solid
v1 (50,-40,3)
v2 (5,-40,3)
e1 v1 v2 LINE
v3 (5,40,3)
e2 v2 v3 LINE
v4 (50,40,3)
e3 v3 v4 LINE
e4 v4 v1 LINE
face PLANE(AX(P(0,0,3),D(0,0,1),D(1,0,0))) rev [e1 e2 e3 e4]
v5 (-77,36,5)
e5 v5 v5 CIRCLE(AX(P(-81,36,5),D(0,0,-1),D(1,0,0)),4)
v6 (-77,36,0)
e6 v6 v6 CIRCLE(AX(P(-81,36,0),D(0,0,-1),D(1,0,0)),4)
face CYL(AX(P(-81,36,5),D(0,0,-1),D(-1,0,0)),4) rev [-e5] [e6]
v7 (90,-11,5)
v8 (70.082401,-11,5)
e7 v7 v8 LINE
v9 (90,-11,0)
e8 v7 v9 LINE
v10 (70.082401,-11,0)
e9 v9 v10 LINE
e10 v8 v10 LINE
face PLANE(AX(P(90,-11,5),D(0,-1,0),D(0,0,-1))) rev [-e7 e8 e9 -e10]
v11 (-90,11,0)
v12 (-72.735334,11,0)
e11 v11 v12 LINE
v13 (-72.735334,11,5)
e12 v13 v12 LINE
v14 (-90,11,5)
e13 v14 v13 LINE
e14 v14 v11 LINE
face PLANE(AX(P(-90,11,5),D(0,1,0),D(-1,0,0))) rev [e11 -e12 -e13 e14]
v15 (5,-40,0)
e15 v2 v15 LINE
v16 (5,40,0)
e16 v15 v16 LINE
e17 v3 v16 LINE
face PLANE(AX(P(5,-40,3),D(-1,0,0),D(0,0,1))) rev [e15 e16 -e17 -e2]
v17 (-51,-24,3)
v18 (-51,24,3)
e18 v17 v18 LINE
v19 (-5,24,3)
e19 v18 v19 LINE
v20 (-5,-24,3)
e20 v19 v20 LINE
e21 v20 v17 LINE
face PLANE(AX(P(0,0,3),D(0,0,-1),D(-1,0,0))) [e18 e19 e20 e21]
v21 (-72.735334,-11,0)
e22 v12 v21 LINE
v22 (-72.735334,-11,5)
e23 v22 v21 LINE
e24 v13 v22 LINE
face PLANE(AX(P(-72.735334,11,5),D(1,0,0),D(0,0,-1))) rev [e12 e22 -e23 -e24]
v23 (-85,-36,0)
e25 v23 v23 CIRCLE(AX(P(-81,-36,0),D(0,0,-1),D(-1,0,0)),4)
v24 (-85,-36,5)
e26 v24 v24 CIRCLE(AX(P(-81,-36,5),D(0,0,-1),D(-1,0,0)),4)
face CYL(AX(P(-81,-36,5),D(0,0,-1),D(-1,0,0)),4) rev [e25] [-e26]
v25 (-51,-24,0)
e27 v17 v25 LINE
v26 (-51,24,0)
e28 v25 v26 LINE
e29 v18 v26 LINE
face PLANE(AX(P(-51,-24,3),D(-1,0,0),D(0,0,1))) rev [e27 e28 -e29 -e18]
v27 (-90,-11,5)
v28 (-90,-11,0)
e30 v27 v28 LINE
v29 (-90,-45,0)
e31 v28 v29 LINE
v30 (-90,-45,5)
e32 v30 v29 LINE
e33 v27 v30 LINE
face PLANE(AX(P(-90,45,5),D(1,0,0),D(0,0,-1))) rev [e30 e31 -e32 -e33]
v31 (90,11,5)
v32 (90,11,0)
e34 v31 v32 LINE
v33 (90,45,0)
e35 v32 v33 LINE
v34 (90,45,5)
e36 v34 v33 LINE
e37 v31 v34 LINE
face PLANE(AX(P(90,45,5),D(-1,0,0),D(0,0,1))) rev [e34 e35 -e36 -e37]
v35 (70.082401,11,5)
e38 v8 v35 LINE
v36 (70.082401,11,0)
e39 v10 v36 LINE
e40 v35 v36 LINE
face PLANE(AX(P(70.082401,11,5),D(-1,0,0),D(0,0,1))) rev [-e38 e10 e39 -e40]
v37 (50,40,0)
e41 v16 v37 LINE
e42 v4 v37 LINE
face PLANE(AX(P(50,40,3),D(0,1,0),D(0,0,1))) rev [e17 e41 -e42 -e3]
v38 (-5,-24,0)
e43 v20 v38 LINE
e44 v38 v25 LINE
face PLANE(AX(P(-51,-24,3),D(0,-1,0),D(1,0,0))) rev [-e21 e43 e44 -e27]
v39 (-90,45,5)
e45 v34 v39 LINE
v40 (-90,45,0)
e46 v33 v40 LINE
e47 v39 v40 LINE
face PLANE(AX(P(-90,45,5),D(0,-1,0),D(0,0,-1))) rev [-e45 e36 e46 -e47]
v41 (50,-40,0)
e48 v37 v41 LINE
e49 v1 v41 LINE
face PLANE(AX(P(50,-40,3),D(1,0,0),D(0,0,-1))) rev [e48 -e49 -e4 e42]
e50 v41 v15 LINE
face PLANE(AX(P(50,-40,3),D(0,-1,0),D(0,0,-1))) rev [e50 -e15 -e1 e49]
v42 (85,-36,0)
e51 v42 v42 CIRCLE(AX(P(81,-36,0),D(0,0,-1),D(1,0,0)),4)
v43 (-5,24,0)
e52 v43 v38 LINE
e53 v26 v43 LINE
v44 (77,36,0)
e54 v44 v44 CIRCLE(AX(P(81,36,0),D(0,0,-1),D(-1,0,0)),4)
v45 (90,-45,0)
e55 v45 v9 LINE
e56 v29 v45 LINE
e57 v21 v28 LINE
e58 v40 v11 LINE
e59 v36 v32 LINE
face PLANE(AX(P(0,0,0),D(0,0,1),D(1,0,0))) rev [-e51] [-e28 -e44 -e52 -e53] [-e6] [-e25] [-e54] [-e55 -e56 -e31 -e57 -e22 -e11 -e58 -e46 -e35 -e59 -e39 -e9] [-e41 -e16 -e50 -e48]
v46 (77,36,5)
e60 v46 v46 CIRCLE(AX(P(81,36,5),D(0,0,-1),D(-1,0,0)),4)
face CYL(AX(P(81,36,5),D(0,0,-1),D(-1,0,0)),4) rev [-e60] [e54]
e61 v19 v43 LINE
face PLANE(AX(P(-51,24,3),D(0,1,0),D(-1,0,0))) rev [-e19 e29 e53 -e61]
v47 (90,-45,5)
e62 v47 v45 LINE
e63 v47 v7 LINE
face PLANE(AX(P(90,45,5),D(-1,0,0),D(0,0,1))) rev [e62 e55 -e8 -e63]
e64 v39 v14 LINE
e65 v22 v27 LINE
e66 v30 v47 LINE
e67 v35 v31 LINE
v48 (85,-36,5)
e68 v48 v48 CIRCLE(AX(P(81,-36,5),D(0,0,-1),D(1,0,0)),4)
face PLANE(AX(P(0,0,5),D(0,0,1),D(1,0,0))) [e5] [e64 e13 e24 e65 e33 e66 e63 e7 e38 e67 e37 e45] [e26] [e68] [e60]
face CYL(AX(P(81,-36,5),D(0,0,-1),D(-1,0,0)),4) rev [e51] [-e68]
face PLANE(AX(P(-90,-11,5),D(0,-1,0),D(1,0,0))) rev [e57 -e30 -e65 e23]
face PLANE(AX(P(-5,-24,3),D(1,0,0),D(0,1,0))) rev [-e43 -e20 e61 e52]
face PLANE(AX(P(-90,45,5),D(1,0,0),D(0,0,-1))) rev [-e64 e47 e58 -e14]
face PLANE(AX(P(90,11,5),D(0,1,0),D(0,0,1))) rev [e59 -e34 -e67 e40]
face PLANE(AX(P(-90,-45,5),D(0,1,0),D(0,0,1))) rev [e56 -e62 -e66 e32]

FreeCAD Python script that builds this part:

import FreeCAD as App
import Part
import Sketcher
from FreeCAD import Vector
Q = App.Units.Quantity

doc = App.newDocument("Part")
body = doc.addObject("PartDesign::Body", "Body")

# Sketch on XY plane
sketch1 = body.newObject("Sketcher::SketchObject", "Sketch")
sketch1.AttachmentSupport = (doc.getObject("XY_Plane"), [""])
sketch1.MapMode = "FlatFace"
sketch1.addGeometry([
    Part.LineSegment(Vector(-90, 45, 0), Vector(-90, -45, 0)),
    Part.LineSegment(Vector(-90, -45, 0), Vector(90, -45, 0)),
    Part.LineSegment(Vector(90, -45, 0), Vector(90, 45, 0)),
    Part.LineSegment(Vector(90, 45, 0), Vector(-90, 45, 0)),
], False)
sketch1.addConstraint([
    Sketcher.Constraint("Coincident", 0, 2, 1, 1),
    Sketcher.Constraint("Coincident", 1, 2, 2, 1),
    Sketcher.Constraint("Coincident", 2, 2, 3, 1),
    Sketcher.Constraint("Coincident", 3, 2, 0, 1),
    Sketcher.Constraint("Vertical", 0),
    Sketcher.Constraint("Horizontal", 1),
    Sketcher.Constraint("Vertical", 2),
    Sketcher.Constraint("Horizontal", 3),
    Sketcher.Constraint("Symmetric", 0, 2, 2, 2, -1, 1),
    Sketcher.Constraint("DistanceX", 1, 1, 1, 2, Q("180 mm")),
    Sketcher.Constraint("DistanceY", 0, 2, 0, 1, Q("90 mm")),
])
pad1 = body.newObject("PartDesign::Pad", "Pad")
pad1.Profile = sketch1
pad1.Length = 5

# Sketch on XY plane
sketch2 = body.newObject("Sketcher::SketchObject", "Sketch001")
sketch2.AttachmentSupport = (doc.getObject("XY_Plane"), [""])
sketch2.MapMode = "FlatFace"
sketch2.addGeometry([
    Part.LineSegment(Vector(90, 11, 0), Vector(90, -11, 0)),  # 0
    Part.LineSegment(Vector(90, -11, 0), Vector(74, -11, 0)),  # 1
    Part.LineSegment(Vector(74, -11, 0), Vector(74, 11, 0)),  # 2
    Part.LineSegment(Vector(74, 11, 0), Vector(90, 11, 0)),  # 3
    Part.LineSegment(Vector(-77, 11, 0), Vector(-77, -11, 0)),  # 4
    Part.LineSegment(Vector(-77, -11, 0), Vector(-90, -11, 0)),  # 5
    Part.LineSegment(Vector(-90, -11, 0), Vector(-90, 11, 0)),  # 6
    Part.LineSegment(Vector(-90, 11, 0), Vector(-77, 11, 0)),  # 7
], False)
sketch2.addConstraint([
    Sketcher.Constraint("Coincident", 0, 2, 1, 1),
    Sketcher.Constraint("Coincident", 1, 2, 2, 1),
    Sketcher.Constraint("Coincident", 2, 2, 3, 1),
    Sketcher.Constraint("Coincident", 3, 2, 0, 1),
    Sketcher.Constraint("Coincident", 4, 2, 5, 1),
    Sketcher.Constraint("Coincident", 5, 2, 6, 1),
    Sketcher.Constraint("Coincident", 6, 2, 7, 1),
    Sketcher.Constraint("Coincident", 7, 2, 4, 1),
    Sketcher.Constraint("Vertical", 0),
    Sketcher.Constraint("Horizontal", 1),
    Sketcher.Constraint("Vertical", 2),
    Sketcher.Constraint("Horizontal", 3),
    Sketcher.Constraint("Vertical", 4),
    Sketcher.Constraint("Horizontal", 5),
    Sketcher.Constraint("Vertical", 6),
    Sketcher.Constraint("Horizontal", 7),
    Sketcher.Constraint("Symmetric", 3, 2, 5, 2, -1, 1),
    Sketcher.Constraint("Horizontal", 1, 2, 4, 2),
    Sketcher.Constraint("Horizontal", 3, 2, 6, 2),
    Sketcher.Constraint("DistanceY", 0, 2, 0, 1, Q("22 mm")),
    Sketcher.Constraint("DistanceX", -1, 1, 0, 2, Q("90 mm")),
    Sketcher.Constraint("DistanceX", 1, 2, 1, 1, Q("15.917599 mm")),
    Sketcher.Constraint("DistanceX", 5, 2, 5, 1, Q("13.264666 mm")),
])
pocket1 = body.newObject("PartDesign::Pocket", "Pocket")
pocket1.Profile = sketch2
pocket1.Type = "ThroughAll"
pocket1.Reversed = True

# Sketch on XY plane
sketch3 = body.newObject("Sketcher::SketchObject", "Sketch002")
sketch3.AttachmentSupport = (doc.getObject("XY_Plane"), [""])
sketch3.MapMode = "FlatFace"
sketch3.addGeometry([
    Part.LineSegment(Vector(74.1, 11, 0), Vector(74.1, -11, 0)),  # 0
    Part.LineSegment(Vector(74.1, -11, 0), Vector(70.1, -11, 0)),  # 1
    Part.LineSegment(Vector(70.1, -11, 0), Vector(70.1, 11, 0)),  # 2
    Part.LineSegment(Vector(70.1, 11, 0), Vector(74.1, 11, 0)),  # 3
    Part.LineSegment(Vector(-72.7, 11, 0), Vector(-72.7, -11, 0)),  # 4
    Part.LineSegment(Vector(-72.7, -11, 0), Vector(-76.7, -11, 0)),  # 5
    Part.LineSegment(Vector(-76.7, -11, 0), Vector(-76.7, 11, 0)),  # 6
    Part.LineSegment(Vector(-76.7, 11, 0), Vector(-72.7, 11, 0)),  # 7
], False)
sketch3.addConstraint([
    Sketcher.Constraint("Coincident", 0, 2, 1, 1),
    Sketcher.Constraint("Coincident", 1, 2, 2, 1),
    Sketcher.Constraint("Coincident", 2, 2, 3, 1),
    Sketcher.Constraint("Coincident", 3, 2, 0, 1),
    Sketcher.Constraint("Coincident", 4, 2, 5, 1),
    Sketcher.Constraint("Coincident", 5, 2, 6, 1),
    Sketcher.Constraint("Coincident", 6, 2, 7, 1),
    Sketcher.Constraint("Coincident", 7, 2, 4, 1),
    Sketcher.Constraint("Vertical", 0),
    Sketcher.Constraint("Horizontal", 1),
    Sketcher.Constraint("Vertical", 2),
    Sketcher.Constraint("Horizontal", 3),
    Sketcher.Constraint("Vertical", 4),
    Sketcher.Constraint("Horizontal", 5),
    Sketcher.Constraint("Vertical", 6),
    Sketcher.Constraint("Horizontal", 7),
    Sketcher.Constraint("Horizontal", 1, 2, 4, 2),
    Sketcher.Constraint("Horizontal", 3, 2, 6, 2),
    Sketcher.Constraint("Equal", 3, 5),
    Sketcher.Constraint("DistanceX", 1, 2, 1, 1, Q("4 mm")),
    Sketcher.Constraint("DistanceY", 0, 2, 0, 1, Q("22 mm")),
    Sketcher.Constraint("DistanceY", 0, 2, -1, 1, Q("11 mm")),
    Sketcher.Constraint("DistanceX", -1, 1, 0, 2, Q("74.082401 mm")),
    Sketcher.Constraint("DistanceX", 4, 2, -1, 1, Q("72.735334 mm")),
])
pocket2 = body.newObject("PartDesign::Pocket", "Pocket001")
pocket2.Profile = sketch3
pocket2.Type = "ThroughAll"
pocket2.Reversed = True

# Sketch on XY plane
sketch4 = body.newObject("Sketcher::SketchObject", "Sketch003")
sketch4.AttachmentSupport = (doc.getObject("XY_Plane"), [""])
sketch4.MapMode = "FlatFace"
sketch4.addGeometry([
    Part.Circle(Vector(81, 36, 0), Vector(0, 0, 1), 4),
    Part.Circle(Vector(-81, 36, 0), Vector(0, 0, 1), 4),
    Part.Circle(Vector(-81, -36, 0), Vector(0, 0, 1), 4),
    Part.Circle(Vector(81, -36, 0), Vector(0, 0, 1), 4),
], False)
sketch4.addConstraint([
    Sketcher.Constraint("Equal", 0, 1),
    Sketcher.Constraint("Equal", 1, 2),
    Sketcher.Constraint("Equal", 2, 3),
    Sketcher.Constraint("Symmetric", 0, 3, 2, 3, -1, 1),
    Sketcher.Constraint("Symmetric", 1, 3, 3, 3, -1, 1),
    Sketcher.Constraint("Symmetric", 0, 3, 1, 3, -2),
    Sketcher.Constraint("Diameter", 0, Q("8 mm")),
    Sketcher.Constraint("DistanceX", -1, 1, 0, 3, Q("81 mm")),
    Sketcher.Constraint("DistanceY", -1, 1, 0, 3, Q("36 mm")),
])
pocket3 = body.newObject("PartDesign::Pocket", "Pocket002")
pocket3.Profile = sketch4
pocket3.Type = "ThroughAll"
pocket3.Reversed = True

# Sketch on XY plane
sketch5 = body.newObject("Sketcher::SketchObject", "Sketch004")
sketch5.AttachmentSupport = (doc.getObject("XY_Plane"), [""])
sketch5.MapMode = "FlatFace"
sketch5.addGeometry([
    Part.LineSegment(Vector(50, 40, 0), Vector(50, -40, 0)),
    Part.LineSegment(Vector(50, -40, 0), Vector(5, -40, 0)),
    Part.LineSegment(Vector(5, -40, 0), Vector(5, 40, 0)),
    Part.LineSegment(Vector(5, 40, 0), Vector(50, 40, 0)),
], False)
sketch5.addConstraint([
    Sketcher.Constraint("Coincident", 0, 2, 1, 1),
    Sketcher.Constraint("Coincident", 1, 2, 2, 1),
    Sketcher.Constraint("Coincident", 2, 2, 3, 1),
    Sketcher.Constraint("Coincident", 3, 2, 0, 1),
    Sketcher.Constraint("Vertical", 0),
    Sketcher.Constraint("Horizontal", 1),
    Sketcher.Constraint("Vertical", 2),
    Sketcher.Constraint("Horizontal", 3),
    Sketcher.Constraint("DistanceX", 1, 2, 1, 1, Q("45 mm")),
    Sketcher.Constraint("DistanceY", 0, 2, 0, 1, Q("80 mm")),
    Sketcher.Constraint("DistanceX", -1, 1, 0, 2, Q("50 mm")),
    Sketcher.Constraint("DistanceY", 0, 2, -1, 1, Q("40 mm")),
])
pocket4 = body.newObject("PartDesign::Pocket", "Pocket003")
pocket4.Profile = sketch5
pocket4.Length = 3
pocket4.Reversed = True

# Sketch on XY plane
sketch6 = body.newObject("Sketcher::SketchObject", "Sketch005")
sketch6.AttachmentSupport = (doc.getObject("XY_Plane"), [""])
sketch6.MapMode = "FlatFace"
sketch6.addGeometry([
    Part.LineSegment(Vector(-5, 24, 0), Vector(-5, -24, 0)),
    Part.LineSegment(Vector(-5, -24, 0), Vector(-51, -24, 0)),
    Part.LineSegment(Vector(-51, -24, 0), Vector(-51, 24, 0)),
    Part.LineSegment(Vector(-51, 24, 0), Vector(-5, 24, 0)),
], False)
sketch6.addConstraint([
    Sketcher.Constraint("Coincident", 0, 2, 1, 1),
    Sketcher.Constraint("Coincident", 1, 2, 2, 1),
    Sketcher.Constraint("Coincident", 2, 2, 3, 1),
    Sketcher.Constraint("Coincident", 3, 2, 0, 1),
    Sketcher.Constraint("Vertical", 0),
    Sketcher.Constraint("Horizontal", 1),
    Sketcher.Constraint("Vertical", 2),
    Sketcher.Constraint("Horizontal", 3),
    Sketcher.Constraint("DistanceX", 1, 2, 1, 1, Q("46 mm")),
    Sketcher.Constraint("DistanceY", 0, 2, 0, 1, Q("48 mm")),
    Sketcher.Constraint("DistanceX", 0, 2, -1, 1, Q("5 mm")),
    Sketcher.Constraint("DistanceY", 0, 2, -1, 1, Q("24 mm")),
])
pocket5 = body.newObject("PartDesign::Pocket", "Pocket004")
pocket5.Profile = sketch6
pocket5.Length = 3
pocket5.Reversed = True

doc.recompute()
